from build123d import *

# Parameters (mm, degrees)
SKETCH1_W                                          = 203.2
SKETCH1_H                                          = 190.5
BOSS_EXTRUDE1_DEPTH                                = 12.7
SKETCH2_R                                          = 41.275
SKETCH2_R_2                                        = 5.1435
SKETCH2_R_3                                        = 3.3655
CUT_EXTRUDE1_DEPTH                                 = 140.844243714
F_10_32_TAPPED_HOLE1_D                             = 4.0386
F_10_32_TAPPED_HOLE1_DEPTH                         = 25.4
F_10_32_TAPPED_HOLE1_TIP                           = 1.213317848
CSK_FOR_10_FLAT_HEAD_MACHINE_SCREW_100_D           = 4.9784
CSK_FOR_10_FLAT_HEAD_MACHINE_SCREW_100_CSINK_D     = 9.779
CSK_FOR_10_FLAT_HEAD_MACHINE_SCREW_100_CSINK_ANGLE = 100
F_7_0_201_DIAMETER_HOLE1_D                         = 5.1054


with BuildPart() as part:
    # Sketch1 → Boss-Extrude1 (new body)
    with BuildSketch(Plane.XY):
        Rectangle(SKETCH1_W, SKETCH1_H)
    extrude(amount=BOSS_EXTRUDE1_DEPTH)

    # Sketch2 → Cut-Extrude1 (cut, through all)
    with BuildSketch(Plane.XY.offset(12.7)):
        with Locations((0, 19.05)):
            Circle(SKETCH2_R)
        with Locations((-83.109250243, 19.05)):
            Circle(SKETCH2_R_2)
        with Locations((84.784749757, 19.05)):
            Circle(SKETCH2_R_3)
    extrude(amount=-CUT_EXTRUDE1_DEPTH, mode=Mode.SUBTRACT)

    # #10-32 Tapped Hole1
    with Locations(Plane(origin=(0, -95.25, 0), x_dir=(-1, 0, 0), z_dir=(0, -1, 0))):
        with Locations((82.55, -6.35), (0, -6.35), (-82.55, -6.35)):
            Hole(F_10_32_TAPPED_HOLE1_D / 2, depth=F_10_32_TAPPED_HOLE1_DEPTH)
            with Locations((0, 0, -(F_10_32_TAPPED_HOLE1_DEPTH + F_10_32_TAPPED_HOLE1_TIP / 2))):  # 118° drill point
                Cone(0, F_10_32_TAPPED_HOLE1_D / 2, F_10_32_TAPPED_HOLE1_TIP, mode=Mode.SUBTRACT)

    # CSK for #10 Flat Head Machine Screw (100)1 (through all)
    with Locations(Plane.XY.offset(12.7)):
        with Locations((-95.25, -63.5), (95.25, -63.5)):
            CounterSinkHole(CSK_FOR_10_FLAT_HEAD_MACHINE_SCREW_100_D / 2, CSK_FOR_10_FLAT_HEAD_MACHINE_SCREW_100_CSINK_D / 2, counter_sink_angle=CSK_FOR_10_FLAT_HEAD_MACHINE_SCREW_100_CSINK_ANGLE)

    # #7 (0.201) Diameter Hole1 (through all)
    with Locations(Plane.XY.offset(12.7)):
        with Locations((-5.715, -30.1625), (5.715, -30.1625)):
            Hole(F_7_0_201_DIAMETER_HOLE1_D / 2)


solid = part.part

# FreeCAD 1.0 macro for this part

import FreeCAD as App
import Part
import Sketcher

V = App.Vector
Q = App.Units.Quantity

doc = App.newDocument("Part")
params = doc.addObject("Spreadsheet::Sheet", "Params")
for row, (alias, value) in enumerate([
    ("sketch1_width", "8 in"),
    ("sketch1_height", "7.5 in"),
    ("pad1_length", "0.5 in"),
    ("sketch2_diameter", "3.25 in"),
    ("sketch2_diameter2", "0.405 in"),
    ("sketch2_diameter3", "0.265 in"),
    ("sketch3_diameter", "0.159 in"),
    ("hole_diameter", "0.159 in"),
    ("hole_depth", "1 in"),
    ("sketch4_diameter", "0.196 in"),
    ("hole2_diameter", "0.196 in"),
    ("hole2_csink_diameter", "0.385 in"),
    ("sketch5_diameter", "0.201 in"),
    ("hole3_diameter", "0.201 in"),
], start=1):
    params.set(f"A{row}", alias)
    params.set(f"B{row}", "=" + value)
    params.setAlias(f"B{row}", alias)

body = doc.addObject("PartDesign::Body", "Body")

# Sketch on XY plane
sketch1 = body.newObject("Sketcher::SketchObject", "Sketch")
sketch1.AttachmentSupport = (doc.getObject("XY_Plane"), [""])
sketch1.MapMode = "FlatFace"
sketch1.addGeometry(Part.LineSegment(V(-102, 95, 0), V(-102, -95, 0)), False)
sketch1.addGeometry(Part.LineSegment(V(-102, -95, 0), V(102, -95, 0)), False)
sketch1.addGeometry(Part.LineSegment(V(102, -95, 0), V(102, 95, 0)), False)
sketch1.addGeometry(Part.LineSegment(V(102, 95, 0), V(-102, 95, 0)), False)
sketch1.addConstraint(Sketcher.Constraint("Coincident", 0, 2, 1, 1))
sketch1.addConstraint(Sketcher.Constraint("Coincident", 1, 2, 2, 1))
sketch1.addConstraint(Sketcher.Constraint("Coincident", 2, 2, 3, 1))
sketch1.addConstraint(Sketcher.Constraint("Coincident", 3, 2, 0, 1))
sketch1.addConstraint(Sketcher.Constraint("Vertical", 0))
sketch1.addConstraint(Sketcher.Constraint("Horizontal", 1))
sketch1.addConstraint(Sketcher.Constraint("Vertical", 2))
sketch1.addConstraint(Sketcher.Constraint("Horizontal", 3))
sketch1.addConstraint(Sketcher.Constraint("Symmetric", 0, 2, 2, 2, -1, 1))
sketch1.addConstraint(Sketcher.Constraint("DistanceX", 1, 1, 1, 2, Q("8 in")))
sketch1.addConstraint(Sketcher.Constraint("DistanceY", 0, 2, 0, 1, Q("7.5 in")))
sketch1.setExpression("Constraints[9]", "Params.sketch1_width")
sketch1.setExpression("Constraints[10]", "Params.sketch1_height")
pad1 = body.newObject("PartDesign::Pad", "Pad")
pad1.Profile = sketch1
pad1.setExpression("Length", "Params.pad1_length")

# Sketch on XY plane
sketch2 = body.newObject("Sketcher::SketchObject", "Sketch001")
sketch2.AttachmentSupport = (doc.getObject("XY_Plane"), [""])
sketch2.MapMode = "FlatFace"
sketch2.AttachmentOffset = App.Placement(V(0, 0, 0.5 * 25.4), App.Rotation())
sketch2.addGeometry(Part.Circle(V(0, 19.1, 0), V(0, 0, 1), 41.3), False)
sketch2.addGeometry(Part.Circle(V(-83.1, 19.1, 0), V(0, 0, 1), 5.1), False)
sketch2.addGeometry(Part.Circle(V(84.8, 19.1, 0), V(0, 0, 1), 3.4), False)
sketch2.addConstraint(Sketcher.Constraint("PointOnObject", 0, 3, -2))
sketch2.addConstraint(Sketcher.Constraint("Horizontal", 0, 3, 1, 3))
sketch2.addConstraint(Sketcher.Constraint("Horizontal", 1, 3, 2, 3))
sketch2.addConstraint(Sketcher.Constraint("Diameter", 0, Q("3.25 in")))
sketch2.addConstraint(Sketcher.Constraint("Diameter", 1, Q("0.405 in")))
sketch2.addConstraint(Sketcher.Constraint("Diameter", 2, Q("0.265 in")))
sketch2.addConstraint(Sketcher.Constraint("DistanceY", -1, 1, 0, 3, Q("0.75 in")))
sketch2.addConstraint(Sketcher.Constraint("DistanceX", 1, 3, 2, 3, Q("6.61 in")))
sketch2.addConstraint(Sketcher.Constraint("DistanceX", 1, 3, -1, 1, 83.10925))
sketch2.setExpression("Constraints[3]", "Params.sketch2_diameter")
sketch2.setExpression("Constraints[4]", "Params.sketch2_diameter2")
sketch2.setExpression("Constraints[5]", "Params.sketch2_diameter3")
pocket1 = body.newObject("PartDesign::Pocket", "Pocket")
pocket1.Profile = sketch2
pocket1.Type = "ThroughAll"

# Sketch on XZ plane
sketch3 = body.newObject("Sketcher::SketchObject", "Sketch002")
sketch3.AttachmentSupport = (doc.getObject("XZ_Plane"), [""])
sketch3.MapMode = "FlatFace"
sketch3.AttachmentOffset = App.Placement(V(0, 0, 3.75 * 25.4), App.Rotation())
sketch3.addGeometry(Part.Circle(V(-82.5, 6.3, 0), V(0, 0, 1), 2), False)
sketch3.addGeometry(Part.Circle(V(0, 6.3, 0), V(0, 0, 1), 2), False)
sketch3.addGeometry(Part.Circle(V(82.5, 6.3, 0), V(0, 0, 1), 2), False)
sketch3.addConstraint(Sketcher.Constraint("Equal", 0, 1))
sketch3.addConstraint(Sketcher.Constraint("Equal", 1, 2))
sketch3.addConstraint(Sketcher.Constraint("Symmetric", 0, 3, 2, 3, -2))
sketch3.addConstraint(Sketcher.Constraint("PointOnObject", 1, 3, -2))
sketch3.addConstraint(Sketcher.Constraint("Horizontal", 0, 3, 1, 3))
sketch3.addConstraint(Sketcher.Constraint("Diameter", 0, Q("0.159 in")))
sketch3.addConstraint(Sketcher.Constraint("DistanceX", 0, 3, 2, 3, Q("6.5 in")))
sketch3.addConstraint(Sketcher.Constraint("DistanceY", -1, 1, 0, 3, Q("0.25 in")))
sketch3.setExpression("Constraints[5]", "Params.sketch3_diameter")
doc.recompute()
hole = body.newObject("PartDesign::Hole", "Hole")
hole.Profile = sketch3
hole.ThreadType = "None"
hole.setExpression("Diameter", "Params.hole_diameter")
hole.DepthType = "Dimension"
hole.setExpression("Depth", "Params.hole_depth")
hole.DrillPoint = "Angled"
hole.DrillPointAngle = 118

# Sketch on XY plane
sketch4 = body.newObject("Sketcher::SketchObject", "Sketch003")
sketch4.AttachmentSupport = (doc.getObject("XY_Plane"), [""])
sketch4.MapMode = "FlatFace"
sketch4.AttachmentOffset = App.Placement(V(0, 0, 0.5 * 25.4), App.Rotation())
sketch4.addGeometry(Part.Circle(V(-95.2, -63.5, 0), V(0, 0, 1), 2.5), False)
sketch4.addGeometry(Part.Circle(V(95.2, -63.5, 0), V(0, 0, 1), 2.5), False)
sketch4.addConstraint(Sketcher.Constraint("Equal", 0, 1))
sketch4.addConstraint(Sketcher.Constraint("Symmetric", 0, 3, 1, 3, -2))
sketch4.addConstraint(Sketcher.Constraint("Diameter", 0, Q("0.196 in")))
sketch4.addConstraint(Sketcher.Constraint("DistanceY", 0, 3, -1, 1, Q("2.5 in")))
sketch4.addConstraint(Sketcher.Constraint("DistanceX", 0, 3, 1, 3, Q("7.5 in")))
sketch4.setExpression("Constraints[2]", "Params.sketch4_diameter")
doc.recompute()
hole2 = body.newObject("PartDesign::Hole", "Hole001")
hole2.Profile = sketch4
hole2.ThreadType = "None"
hole2.setExpression("Diameter", "Params.hole2_diameter")
hole2.DepthType = "ThroughAll"
hole2.HoleCutType = "Countersink"
hole2.setExpression("HoleCutDiameter", "Params.hole2_csink_diameter")
hole2.HoleCutCountersinkAngle = 100

# Sketch on XY plane
sketch5 = body.newObject("Sketcher::SketchObject", "Sketch004")
sketch5.AttachmentSupport = (doc.getObject("XY_Plane"), [""])
sketch5.MapMode = "FlatFace"
sketch5.AttachmentOffset = App.Placement(V(0, 0, 0.5 * 25.4), App.Rotation())
sketch5.addGeometry(Part.Circle(V(-5.7, -30.2, 0), V(0, 0, 1), 2.6), False)
sketch5.addGeometry(Part.Circle(V(5.7, -30.2, 0), V(0, 0, 1), 2.6), False)
sketch5.addConstraint(Sketcher.Constraint("Equal", 0, 1))
sketch5.addConstraint(Sketcher.Constraint("Symmetric", 0, 3, 1, 3, -2))
sketch5.addConstraint(Sketcher.Constraint("Diameter", 0, Q("0.201 in")))
sketch5.addConstraint(Sketcher.Constraint("DistanceX", 0, 3, 1, 3, Q("0.45 in")))
sketch5.addConstraint(Sketcher.Constraint("DistanceY", 0, 3, -1, 1, Q("1.1875 in")))
sketch5.setExpression("Constraints[2]", "Params.sketch5_diameter")
doc.recompute()
hole3 = body.newObject("PartDesign::Hole", "Hole002")
hole3.Profile = sketch5
hole3.ThreadType = "None"
hole3.setExpression("Diameter", "Params.hole3_diameter")
hole3.DepthType = "ThroughAll"

doc.recompute()
